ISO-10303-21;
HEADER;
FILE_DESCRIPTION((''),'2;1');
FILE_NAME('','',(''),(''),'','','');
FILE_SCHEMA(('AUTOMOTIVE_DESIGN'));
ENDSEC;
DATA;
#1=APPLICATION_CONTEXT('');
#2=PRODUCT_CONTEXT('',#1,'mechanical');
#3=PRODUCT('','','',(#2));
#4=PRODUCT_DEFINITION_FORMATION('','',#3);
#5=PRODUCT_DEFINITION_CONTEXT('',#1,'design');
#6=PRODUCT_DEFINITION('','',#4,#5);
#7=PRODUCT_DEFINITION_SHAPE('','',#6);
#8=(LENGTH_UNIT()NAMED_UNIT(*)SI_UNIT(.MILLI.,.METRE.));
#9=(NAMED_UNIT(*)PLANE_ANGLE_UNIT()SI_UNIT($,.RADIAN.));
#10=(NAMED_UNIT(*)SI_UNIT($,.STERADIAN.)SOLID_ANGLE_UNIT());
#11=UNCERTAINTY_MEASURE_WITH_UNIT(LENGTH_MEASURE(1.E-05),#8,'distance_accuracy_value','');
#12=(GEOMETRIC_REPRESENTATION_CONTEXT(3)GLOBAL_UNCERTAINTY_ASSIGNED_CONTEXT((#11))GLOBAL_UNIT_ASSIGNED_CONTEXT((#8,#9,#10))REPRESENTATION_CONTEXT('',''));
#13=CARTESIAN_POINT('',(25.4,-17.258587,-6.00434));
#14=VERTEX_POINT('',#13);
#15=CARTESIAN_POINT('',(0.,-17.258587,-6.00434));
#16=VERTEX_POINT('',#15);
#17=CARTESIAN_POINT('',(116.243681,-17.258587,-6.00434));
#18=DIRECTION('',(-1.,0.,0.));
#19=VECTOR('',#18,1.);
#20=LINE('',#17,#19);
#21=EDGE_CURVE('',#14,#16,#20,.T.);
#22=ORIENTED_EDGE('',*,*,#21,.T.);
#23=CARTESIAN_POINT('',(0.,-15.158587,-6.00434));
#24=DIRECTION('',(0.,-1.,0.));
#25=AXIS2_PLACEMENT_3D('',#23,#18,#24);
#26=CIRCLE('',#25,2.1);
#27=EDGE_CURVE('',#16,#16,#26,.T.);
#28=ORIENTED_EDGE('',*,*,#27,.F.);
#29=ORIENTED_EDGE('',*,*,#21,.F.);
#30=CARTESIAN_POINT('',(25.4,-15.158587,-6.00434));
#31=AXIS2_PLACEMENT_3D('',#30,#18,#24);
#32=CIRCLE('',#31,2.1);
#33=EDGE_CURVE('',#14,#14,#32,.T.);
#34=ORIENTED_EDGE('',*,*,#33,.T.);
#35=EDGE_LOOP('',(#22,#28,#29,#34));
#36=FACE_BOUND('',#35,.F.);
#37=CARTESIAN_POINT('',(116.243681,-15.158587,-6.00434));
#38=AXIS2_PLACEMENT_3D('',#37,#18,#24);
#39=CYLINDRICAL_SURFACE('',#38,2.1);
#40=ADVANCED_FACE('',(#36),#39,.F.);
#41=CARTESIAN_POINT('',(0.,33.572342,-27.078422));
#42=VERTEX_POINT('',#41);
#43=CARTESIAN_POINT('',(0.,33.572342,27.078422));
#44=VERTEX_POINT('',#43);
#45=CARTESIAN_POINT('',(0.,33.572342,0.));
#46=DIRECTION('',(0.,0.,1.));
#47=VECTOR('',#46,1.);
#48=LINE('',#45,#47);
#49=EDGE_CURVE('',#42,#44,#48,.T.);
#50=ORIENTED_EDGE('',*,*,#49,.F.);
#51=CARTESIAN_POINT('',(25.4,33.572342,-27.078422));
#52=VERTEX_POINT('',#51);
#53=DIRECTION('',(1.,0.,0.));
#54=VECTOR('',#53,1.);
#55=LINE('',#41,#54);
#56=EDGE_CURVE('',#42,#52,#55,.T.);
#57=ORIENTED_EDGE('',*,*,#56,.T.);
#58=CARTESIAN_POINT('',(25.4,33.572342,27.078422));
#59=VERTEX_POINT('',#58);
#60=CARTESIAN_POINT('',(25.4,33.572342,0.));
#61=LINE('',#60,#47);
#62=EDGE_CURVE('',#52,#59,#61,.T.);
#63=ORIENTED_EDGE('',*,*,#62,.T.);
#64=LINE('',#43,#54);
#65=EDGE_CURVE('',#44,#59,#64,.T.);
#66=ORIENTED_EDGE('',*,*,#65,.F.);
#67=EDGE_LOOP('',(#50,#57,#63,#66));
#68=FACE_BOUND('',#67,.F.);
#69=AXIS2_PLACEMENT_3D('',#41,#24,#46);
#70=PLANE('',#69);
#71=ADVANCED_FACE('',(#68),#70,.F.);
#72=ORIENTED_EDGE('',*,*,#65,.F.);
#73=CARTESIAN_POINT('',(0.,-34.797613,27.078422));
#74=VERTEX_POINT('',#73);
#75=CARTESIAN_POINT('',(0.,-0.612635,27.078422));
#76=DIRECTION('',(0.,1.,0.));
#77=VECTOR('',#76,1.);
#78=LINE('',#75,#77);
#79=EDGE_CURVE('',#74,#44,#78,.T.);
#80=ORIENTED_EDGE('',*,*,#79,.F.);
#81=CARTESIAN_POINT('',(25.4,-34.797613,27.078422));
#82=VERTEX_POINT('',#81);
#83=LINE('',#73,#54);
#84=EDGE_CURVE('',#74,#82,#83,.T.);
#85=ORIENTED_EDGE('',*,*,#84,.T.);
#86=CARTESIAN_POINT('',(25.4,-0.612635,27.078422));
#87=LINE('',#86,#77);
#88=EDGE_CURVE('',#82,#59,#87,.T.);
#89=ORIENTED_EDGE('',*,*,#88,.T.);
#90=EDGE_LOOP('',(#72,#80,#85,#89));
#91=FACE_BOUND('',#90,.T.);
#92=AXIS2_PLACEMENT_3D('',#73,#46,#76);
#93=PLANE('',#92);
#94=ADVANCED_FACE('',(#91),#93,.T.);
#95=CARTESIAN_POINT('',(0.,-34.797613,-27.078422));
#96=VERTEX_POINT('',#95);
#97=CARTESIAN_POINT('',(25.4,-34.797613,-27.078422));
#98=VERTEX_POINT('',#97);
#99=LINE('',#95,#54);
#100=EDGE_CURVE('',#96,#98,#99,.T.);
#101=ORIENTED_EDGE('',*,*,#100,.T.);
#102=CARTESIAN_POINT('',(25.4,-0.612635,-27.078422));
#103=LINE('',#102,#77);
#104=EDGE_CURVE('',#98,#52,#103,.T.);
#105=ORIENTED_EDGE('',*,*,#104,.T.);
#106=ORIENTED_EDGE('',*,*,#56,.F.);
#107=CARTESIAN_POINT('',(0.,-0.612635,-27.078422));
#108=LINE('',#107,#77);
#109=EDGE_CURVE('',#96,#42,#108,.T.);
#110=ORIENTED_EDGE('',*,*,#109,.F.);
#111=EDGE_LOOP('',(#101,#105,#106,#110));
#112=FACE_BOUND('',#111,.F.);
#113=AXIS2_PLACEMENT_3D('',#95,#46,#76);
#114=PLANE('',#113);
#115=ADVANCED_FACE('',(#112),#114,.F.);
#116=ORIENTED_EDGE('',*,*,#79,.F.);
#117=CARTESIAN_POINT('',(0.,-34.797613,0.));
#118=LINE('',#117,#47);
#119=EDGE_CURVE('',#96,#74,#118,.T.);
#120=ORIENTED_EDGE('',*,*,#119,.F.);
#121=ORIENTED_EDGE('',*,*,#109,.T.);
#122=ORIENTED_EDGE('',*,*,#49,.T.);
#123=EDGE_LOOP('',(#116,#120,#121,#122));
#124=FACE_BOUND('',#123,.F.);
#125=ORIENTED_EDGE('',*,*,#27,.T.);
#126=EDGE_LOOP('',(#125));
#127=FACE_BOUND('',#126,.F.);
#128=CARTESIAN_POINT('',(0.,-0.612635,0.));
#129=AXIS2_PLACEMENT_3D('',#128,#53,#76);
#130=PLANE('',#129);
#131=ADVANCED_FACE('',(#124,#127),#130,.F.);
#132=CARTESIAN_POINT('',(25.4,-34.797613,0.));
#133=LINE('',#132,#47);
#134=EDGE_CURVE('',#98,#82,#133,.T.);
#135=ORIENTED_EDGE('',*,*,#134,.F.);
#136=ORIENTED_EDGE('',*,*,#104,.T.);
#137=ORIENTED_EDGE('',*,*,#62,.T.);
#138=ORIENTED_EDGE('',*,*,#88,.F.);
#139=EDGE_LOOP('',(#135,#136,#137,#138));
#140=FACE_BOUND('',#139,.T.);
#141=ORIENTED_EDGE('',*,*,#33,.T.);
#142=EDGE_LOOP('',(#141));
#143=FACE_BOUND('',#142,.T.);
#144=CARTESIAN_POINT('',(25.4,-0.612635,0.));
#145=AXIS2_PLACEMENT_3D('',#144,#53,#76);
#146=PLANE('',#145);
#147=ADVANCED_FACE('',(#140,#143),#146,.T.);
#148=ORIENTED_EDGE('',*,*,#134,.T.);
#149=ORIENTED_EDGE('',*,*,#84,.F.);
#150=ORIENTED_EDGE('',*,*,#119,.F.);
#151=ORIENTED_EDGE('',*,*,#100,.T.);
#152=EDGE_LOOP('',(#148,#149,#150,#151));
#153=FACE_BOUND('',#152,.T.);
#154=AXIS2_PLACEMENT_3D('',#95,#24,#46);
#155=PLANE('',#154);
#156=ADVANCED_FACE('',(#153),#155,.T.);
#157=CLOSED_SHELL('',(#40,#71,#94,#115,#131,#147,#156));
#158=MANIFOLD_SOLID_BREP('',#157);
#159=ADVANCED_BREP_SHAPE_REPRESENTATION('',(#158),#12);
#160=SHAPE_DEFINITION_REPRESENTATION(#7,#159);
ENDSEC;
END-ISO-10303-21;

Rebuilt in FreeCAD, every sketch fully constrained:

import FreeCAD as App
import Part
import Sketcher

V = App.Vector
Q = App.Units.Quantity


def add_polygon(sketch, points):
    """Adds a closed chain of lines whose ends are joined by coincident constraints."""
    first, n = sketch.GeometryCount, len(points)
    for a, b in zip(points, points[1:] + points[:1]):
        sketch.addGeometry(Part.LineSegment(App.Vector(*a, 0), App.Vector(*b, 0)), False)
    for i in range(n):
        sketch.addConstraint(Sketcher.Constraint("Coincident", first + i, 2, first + (i + 1) % n, 1))

doc = App.newDocument("Part")
body = doc.addObject("PartDesign::Body", "Body")

# Sketch on YZ plane
sketch1 = body.newObject("Sketcher::SketchObject", "Sketch")
sketch1.AttachmentSupport = (doc.getObject("YZ_Plane"), [""])
sketch1.MapMode = "FlatFace"
add_polygon(sketch1, [(-35, 27), (-35, -27), (34, -27), (34, 27)])  # lines 0-3
sketch1.addConstraint([
    Sketcher.Constraint("Vertical", 0),
    Sketcher.Constraint("Horizontal", 1),
    Sketcher.Constraint("Vertical", 2),
    Sketcher.Constraint("Horizontal", 3),
    Sketcher.Constraint("DistanceX", 1, 1, 1, 2, Q("68.369955 mm")),
    Sketcher.Constraint("DistanceY", 0, 2, 0, 1, Q("54.156844 mm")),
    Sketcher.Constraint("DistanceY", 0, 2, -1, 1, Q("27.078422 mm")),
    Sketcher.Constraint("DistanceX", 0, 2, -1, 1, Q("34.797613 mm")),
])
pad1 = body.newObject("PartDesign::Pad", "Pad")
pad1.Profile = sketch1
pad1.Length = 25.4

# Sketch on YZ plane
sketch2 = body.newObject("Sketcher::SketchObject", "Sketch001")
sketch2.AttachmentSupport = (doc.getObject("YZ_Plane"), [""])
sketch2.MapMode = "FlatFace"
sketch2.AttachmentOffset = App.Placement(V(0, 0, 25.4), App.Rotation())
sketch2.addGeometry(Part.Circle(V(-15.2, -6, 0), V(0, 0, 1), 2.1), False)
sketch2.addConstraint([
    Sketcher.Constraint("Diameter", 0, Q("4.2 mm")),
    Sketcher.Constraint("DistanceY", 0, 3, -1, 1, Q("6.00434 mm")),
    Sketcher.Constraint("DistanceX", 0, 3, -1, 1, Q("15.158587 mm")),
])
doc.recompute()
hole = body.newObject("PartDesign::Hole", "Hole")
hole.Profile = sketch2
hole.ThreadType = "None"
hole.Diameter = 4.2
hole.DepthType = "ThroughAll"

doc.recompute()
